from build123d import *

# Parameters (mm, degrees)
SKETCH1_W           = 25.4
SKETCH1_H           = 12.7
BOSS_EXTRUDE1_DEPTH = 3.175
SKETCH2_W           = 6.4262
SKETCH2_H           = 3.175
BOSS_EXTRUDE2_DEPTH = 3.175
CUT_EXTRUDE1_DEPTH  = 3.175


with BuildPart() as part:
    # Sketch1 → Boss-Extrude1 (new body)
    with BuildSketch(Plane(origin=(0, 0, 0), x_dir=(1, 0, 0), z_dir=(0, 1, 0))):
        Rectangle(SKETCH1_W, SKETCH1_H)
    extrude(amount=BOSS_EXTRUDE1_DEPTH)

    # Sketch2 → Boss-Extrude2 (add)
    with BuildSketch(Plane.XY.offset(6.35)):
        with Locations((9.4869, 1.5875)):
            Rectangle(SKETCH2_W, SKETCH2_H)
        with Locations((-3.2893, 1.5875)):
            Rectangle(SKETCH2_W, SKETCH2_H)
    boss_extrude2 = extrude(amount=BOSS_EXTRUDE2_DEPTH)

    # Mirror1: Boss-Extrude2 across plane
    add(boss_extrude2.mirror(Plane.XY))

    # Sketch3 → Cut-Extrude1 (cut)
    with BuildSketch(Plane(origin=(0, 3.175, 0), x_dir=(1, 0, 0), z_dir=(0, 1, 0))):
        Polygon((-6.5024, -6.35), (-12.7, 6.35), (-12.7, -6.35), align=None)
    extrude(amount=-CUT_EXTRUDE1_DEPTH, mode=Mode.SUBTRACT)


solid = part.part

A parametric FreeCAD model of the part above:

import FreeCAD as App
import Part
import Sketcher
Q = App.Units.Quantity


def add_polygon(sketch, points):
    """Adds a closed chain of lines whose ends are joined by coincident constraints."""
    first, n = sketch.GeometryCount, len(points)
    for a, b in zip(points, points[1:] + points[:1]):
        sketch.addGeometry(Part.LineSegment(App.Vector(*a, 0), App.Vector(*b, 0)), False)
    for i in range(n):
        sketch.addConstraint(Sketcher.Constraint("Coincident", first + i, 2, first + (i + 1) % n, 1))

doc = App.newDocument("Part")
body = doc.addObject("PartDesign::Body", "Body")

# Sketch on XZ plane
sketch1 = body.newObject("Sketcher::SketchObject", "Sketch")
sketch1.AttachmentSupport = (doc.getObject("XZ_Plane"), [""])
sketch1.MapMode = "FlatFace"
add_polygon(sketch1, [(-13, -6), (-13, 6), (13, 6), (13, -6)])  # lines 0-3
sketch1.addConstraint([
    Sketcher.Constraint("Vertical", 0),
    Sketcher.Constraint("Horizontal", 1),
    Sketcher.Constraint("Vertical", 2),
    Sketcher.Constraint("Horizontal", 3),
    Sketcher.Constraint("Symmetric", 0, 2, 2, 2, -1, 1),
    Sketcher.Constraint("DistanceX", 1, 1, 1, 2, Q("1 in")),
    Sketcher.Constraint("DistanceY", 0, 1, 0, 2, Q("0.5 in")),
])
pad1 = body.newObject("PartDesign::Pad", "Pad")
pad1.Profile = sketch1
pad1.Length = Q("0.125 in")
pad1.Reversed = True

# Sketch on XY plane
sketch2 = body.newObject("Sketcher::SketchObject", "Sketch001")
sketch2.AttachmentSupport = (doc.getObject("XY_Plane"), [""])
sketch2.MapMode = "FlatFace"
sketch2.AttachmentOffset = App.Placement(App.Vector(0, 0, 0.25 * 25.4), App.Rotation())
add_polygon(sketch2, [(6.3, 3.2), (6.3, 0), (12.7, 0), (12.7, 3.2)])  # lines 0-3
add_polygon(sketch2, [(-6.5, 3.2), (-6.5, 0), (-0.1, 0), (-0.1, 3.2)])  # lines 4-7
sketch2.addConstraint([
    Sketcher.Constraint("Vertical", 0),
    Sketcher.Constraint("Horizontal", 1),
    Sketcher.Constraint("Vertical", 2),
    Sketcher.Constraint("Horizontal", 3),
    Sketcher.Constraint("Vertical", 4),
    Sketcher.Constraint("Horizontal", 5),
    Sketcher.Constraint("Vertical", 6),
    Sketcher.Constraint("Horizontal", 7),
    Sketcher.Constraint("PointOnObject", 0, 2, -1),
    Sketcher.Constraint("PointOnObject", 4, 2, -1),
    Sketcher.Constraint("Horizontal", 3, 2, 6, 2),
    Sketcher.Constraint("Equal", 3, 5),
    Sketcher.Constraint("DistanceX", -1, 1, 1, 2, Q("0.5 in")),
    Sketcher.Constraint("DistanceX", 1, 1, 1, 2, Q("0.253 in")),
    Sketcher.Constraint("DistanceY", 0, 2, 0, 1, Q("0.125 in")),
    Sketcher.Constraint("DistanceX", 5, 2, 0, 2, Q("0.25 in")),
])
pad2 = body.newObject("PartDesign::Pad", "Pad001")
pad2.Profile = sketch2
pad2.Length = Q("0.125 in")
doc.recompute()

mirrored = body.newObject("PartDesign::Mirrored", "Mirrored")
mirrored.Originals = [pad2]
mirrored.MirrorPlane = (doc.getObject("XY_Plane"), [""])
body.Tip = mirrored

# Sketch on XZ plane
sketch3 = body.newObject("Sketcher::SketchObject", "Sketch002")
sketch3.AttachmentSupport = (doc.getObject("XZ_Plane"), [""])
sketch3.MapMode = "FlatFace"
sketch3.AttachmentOffset = App.Placement(App.Vector(0, 0, -0.125 * 25.4), App.Rotation())
add_polygon(sketch3, [(-7, 6), (-13, -6), (-13, 6)])  # lines 0-2
sketch3.addConstraint([
    Sketcher.Constraint("Vertical", 1),
    Sketcher.Constraint("Horizontal", 2),
    Sketcher.Constraint("DistanceY", 1, 1, 1, 2, Q("0.5 in")),
    Sketcher.Constraint("DistanceX", 0, 2, -1, 1, Q("0.5 in")),
    Sketcher.Constraint("DistanceX", 2, 1, 2, 2, Q("0.244 in")),
    Sketcher.Constraint("DistanceY", 0, 2, -1, 1, Q("0.25 in")),
])
pocket1 = body.newObject("PartDesign::Pocket", "Pocket")
pocket1.Profile = sketch3
pocket1.Length = Q("0.125 in")
pocket1.Reversed = True

doc.recompute()
